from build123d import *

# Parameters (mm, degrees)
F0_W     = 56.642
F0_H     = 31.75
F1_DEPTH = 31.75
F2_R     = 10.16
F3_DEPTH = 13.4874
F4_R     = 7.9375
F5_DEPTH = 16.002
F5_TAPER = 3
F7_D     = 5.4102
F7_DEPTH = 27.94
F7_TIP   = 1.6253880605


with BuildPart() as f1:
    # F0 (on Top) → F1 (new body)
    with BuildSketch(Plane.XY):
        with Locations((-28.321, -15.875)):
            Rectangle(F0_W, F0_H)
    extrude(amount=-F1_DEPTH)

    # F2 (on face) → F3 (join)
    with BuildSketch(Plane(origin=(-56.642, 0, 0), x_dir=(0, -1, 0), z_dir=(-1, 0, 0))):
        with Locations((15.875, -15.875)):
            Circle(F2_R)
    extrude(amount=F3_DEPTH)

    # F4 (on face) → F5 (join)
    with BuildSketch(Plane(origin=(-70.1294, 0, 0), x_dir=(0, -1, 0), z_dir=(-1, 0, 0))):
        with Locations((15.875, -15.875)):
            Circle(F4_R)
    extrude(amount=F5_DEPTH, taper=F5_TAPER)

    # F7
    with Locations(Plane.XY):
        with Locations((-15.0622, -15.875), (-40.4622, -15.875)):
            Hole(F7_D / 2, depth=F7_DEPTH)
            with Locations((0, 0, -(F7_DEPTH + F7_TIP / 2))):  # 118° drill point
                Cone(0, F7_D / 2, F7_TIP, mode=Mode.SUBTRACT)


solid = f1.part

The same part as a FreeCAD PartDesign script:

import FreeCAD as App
import Part
import Sketcher
Q = App.Units.Quantity

doc = App.newDocument("Part")
body = doc.addObject("PartDesign::Body", "Body")

# Sketch on XY plane
sketch1 = doc.addObject("Sketcher::SketchObject", "Sketch")
body.addObject(sketch1)
sketch1.AttachmentSupport = (doc.XY_Plane, [""])
sketch1.MapMode = "FlatFace"
sketch1.addGeometry([
    Part.LineSegment(App.Vector(-57, 0, 0), App.Vector(-57, -32, 0)),
    Part.LineSegment(App.Vector(-57, -32, 0), App.Vector(0, -32, 0)),
    Part.LineSegment(App.Vector(0, -32, 0), App.Vector(0, 0, 0)),
    Part.LineSegment(App.Vector(0, 0, 0), App.Vector(-57, 0, 0)),
], False)
sketch1.addConstraint([
    Sketcher.Constraint("Coincident", 0, 2, 1, 1),
    Sketcher.Constraint("Coincident", 1, 2, 2, 1),
    Sketcher.Constraint("Coincident", 2, 2, 3, 1),
    Sketcher.Constraint("Coincident", 3, 2, 0, 1),
    Sketcher.Constraint("Vertical", 0),
    Sketcher.Constraint("Horizontal", 1),
    Sketcher.Constraint("Vertical", 2),
    Sketcher.Constraint("Horizontal", 3),
    Sketcher.Constraint("Coincident", 2, 2, -1, 1),
    Sketcher.Constraint("DistanceX", 1, 1, 1, 2, Q("2.23 in")),
    Sketcher.Constraint("DistanceY", 0, 2, 0, 1, Q("1.25 in")),
])
pad1 = doc.addObject("PartDesign::Pad", "Pad")
body.addObject(pad1)
pad1.Profile = sketch1
pad1.Length = Q("1.25 in")
pad1.Reversed = True

# Sketch on YZ plane
sketch2 = doc.addObject("Sketcher::SketchObject", "Sketch001")
body.addObject(sketch2)
sketch2.AttachmentSupport = (doc.YZ_Plane, [""])
sketch2.MapMode = "FlatFace"
sketch2.AttachmentOffset = App.Placement(App.Vector(0, 0, -2.23 * 25.4), App.Rotation())
sketch2.addGeometry(Part.Circle(App.Vector(-16, -16, 0), App.Vector(0, 0, 1), 10), False)
sketch2.addConstraint([
    Sketcher.Constraint("Diameter", 0, Q("0.8 in")),
    Sketcher.Constraint("DistanceX", 0, 3, -1, 1, Q("0.625 in")),
    Sketcher.Constraint("DistanceY", 0, 3, -1, 1, Q("0.625 in")),
])
pad2 = doc.addObject("PartDesign::Pad", "Pad001")
body.addObject(pad2)
pad2.Profile = sketch2
pad2.Length = Q("0.531 in")
pad2.Reversed = True

# Sketch on YZ plane
sketch3 = doc.addObject("Sketcher::SketchObject", "Sketch002")
body.addObject(sketch3)
sketch3.AttachmentSupport = (doc.YZ_Plane, [""])
sketch3.MapMode = "FlatFace"
sketch3.AttachmentOffset = App.Placement(App.Vector(0, 0, -2.761 * 25.4), App.Rotation())
sketch3.addGeometry(Part.Circle(App.Vector(-16, -16, 0), App.Vector(0, 0, 1), 8), False)
sketch3.addConstraint([
    Sketcher.Constraint("Diameter", 0, Q("0.625 in")),
    Sketcher.Constraint("DistanceX", 0, 3, -1, 1, Q("0.625 in")),
    Sketcher.Constraint("DistanceY", 0, 3, -1, 1, Q("0.625 in")),
])
pad3 = doc.addObject("PartDesign::Pad", "Pad002")
body.addObject(pad3)
pad3.Profile = sketch3
pad3.Length = Q("0.63 in")
pad3.Reversed = True
pad3.TaperAngle = -3

# Sketch on XY plane
sketch4 = doc.addObject("Sketcher::SketchObject", "Sketch003")
body.addObject(sketch4)
sketch4.AttachmentSupport = (doc.XY_Plane, [""])
sketch4.MapMode = "FlatFace"
sketch4.addGeometry([
    Part.Circle(App.Vector(-15.1, -15.9, 0), App.Vector(0, 0, 1), 2.7),
    Part.Circle(App.Vector(-40.5, -15.9, 0), App.Vector(0, 0, 1), 2.7),
], False)
sketch4.addConstraint([
    Sketcher.Constraint("Equal", 0, 1),
    Sketcher.Constraint("Horizontal", 0, 3, 1, 3),
    Sketcher.Constraint("Diameter", 0, Q("0.213 in")),
    Sketcher.Constraint("DistanceX", 1, 3, 0, 3, Q("1 in")),
    Sketcher.Constraint("DistanceX", 0, 3, -1, 1, Q("0.593 in")),
    Sketcher.Constraint("DistanceY", 0, 3, -1, 1, Q("0.625 in")),
])
doc.recompute()
hole = doc.addObject("PartDesign::Hole", "Hole")
body.addObject(hole)
hole.Profile = sketch4
hole.ThreadType = "None"
hole.Diameter = Q("0.213 in")
hole.DepthType = "Dimension"
hole.Depth = Q("1.1 in")
hole.DrillPoint = "Angled"
hole.DrillPointAngle = 118

doc.recompute()
